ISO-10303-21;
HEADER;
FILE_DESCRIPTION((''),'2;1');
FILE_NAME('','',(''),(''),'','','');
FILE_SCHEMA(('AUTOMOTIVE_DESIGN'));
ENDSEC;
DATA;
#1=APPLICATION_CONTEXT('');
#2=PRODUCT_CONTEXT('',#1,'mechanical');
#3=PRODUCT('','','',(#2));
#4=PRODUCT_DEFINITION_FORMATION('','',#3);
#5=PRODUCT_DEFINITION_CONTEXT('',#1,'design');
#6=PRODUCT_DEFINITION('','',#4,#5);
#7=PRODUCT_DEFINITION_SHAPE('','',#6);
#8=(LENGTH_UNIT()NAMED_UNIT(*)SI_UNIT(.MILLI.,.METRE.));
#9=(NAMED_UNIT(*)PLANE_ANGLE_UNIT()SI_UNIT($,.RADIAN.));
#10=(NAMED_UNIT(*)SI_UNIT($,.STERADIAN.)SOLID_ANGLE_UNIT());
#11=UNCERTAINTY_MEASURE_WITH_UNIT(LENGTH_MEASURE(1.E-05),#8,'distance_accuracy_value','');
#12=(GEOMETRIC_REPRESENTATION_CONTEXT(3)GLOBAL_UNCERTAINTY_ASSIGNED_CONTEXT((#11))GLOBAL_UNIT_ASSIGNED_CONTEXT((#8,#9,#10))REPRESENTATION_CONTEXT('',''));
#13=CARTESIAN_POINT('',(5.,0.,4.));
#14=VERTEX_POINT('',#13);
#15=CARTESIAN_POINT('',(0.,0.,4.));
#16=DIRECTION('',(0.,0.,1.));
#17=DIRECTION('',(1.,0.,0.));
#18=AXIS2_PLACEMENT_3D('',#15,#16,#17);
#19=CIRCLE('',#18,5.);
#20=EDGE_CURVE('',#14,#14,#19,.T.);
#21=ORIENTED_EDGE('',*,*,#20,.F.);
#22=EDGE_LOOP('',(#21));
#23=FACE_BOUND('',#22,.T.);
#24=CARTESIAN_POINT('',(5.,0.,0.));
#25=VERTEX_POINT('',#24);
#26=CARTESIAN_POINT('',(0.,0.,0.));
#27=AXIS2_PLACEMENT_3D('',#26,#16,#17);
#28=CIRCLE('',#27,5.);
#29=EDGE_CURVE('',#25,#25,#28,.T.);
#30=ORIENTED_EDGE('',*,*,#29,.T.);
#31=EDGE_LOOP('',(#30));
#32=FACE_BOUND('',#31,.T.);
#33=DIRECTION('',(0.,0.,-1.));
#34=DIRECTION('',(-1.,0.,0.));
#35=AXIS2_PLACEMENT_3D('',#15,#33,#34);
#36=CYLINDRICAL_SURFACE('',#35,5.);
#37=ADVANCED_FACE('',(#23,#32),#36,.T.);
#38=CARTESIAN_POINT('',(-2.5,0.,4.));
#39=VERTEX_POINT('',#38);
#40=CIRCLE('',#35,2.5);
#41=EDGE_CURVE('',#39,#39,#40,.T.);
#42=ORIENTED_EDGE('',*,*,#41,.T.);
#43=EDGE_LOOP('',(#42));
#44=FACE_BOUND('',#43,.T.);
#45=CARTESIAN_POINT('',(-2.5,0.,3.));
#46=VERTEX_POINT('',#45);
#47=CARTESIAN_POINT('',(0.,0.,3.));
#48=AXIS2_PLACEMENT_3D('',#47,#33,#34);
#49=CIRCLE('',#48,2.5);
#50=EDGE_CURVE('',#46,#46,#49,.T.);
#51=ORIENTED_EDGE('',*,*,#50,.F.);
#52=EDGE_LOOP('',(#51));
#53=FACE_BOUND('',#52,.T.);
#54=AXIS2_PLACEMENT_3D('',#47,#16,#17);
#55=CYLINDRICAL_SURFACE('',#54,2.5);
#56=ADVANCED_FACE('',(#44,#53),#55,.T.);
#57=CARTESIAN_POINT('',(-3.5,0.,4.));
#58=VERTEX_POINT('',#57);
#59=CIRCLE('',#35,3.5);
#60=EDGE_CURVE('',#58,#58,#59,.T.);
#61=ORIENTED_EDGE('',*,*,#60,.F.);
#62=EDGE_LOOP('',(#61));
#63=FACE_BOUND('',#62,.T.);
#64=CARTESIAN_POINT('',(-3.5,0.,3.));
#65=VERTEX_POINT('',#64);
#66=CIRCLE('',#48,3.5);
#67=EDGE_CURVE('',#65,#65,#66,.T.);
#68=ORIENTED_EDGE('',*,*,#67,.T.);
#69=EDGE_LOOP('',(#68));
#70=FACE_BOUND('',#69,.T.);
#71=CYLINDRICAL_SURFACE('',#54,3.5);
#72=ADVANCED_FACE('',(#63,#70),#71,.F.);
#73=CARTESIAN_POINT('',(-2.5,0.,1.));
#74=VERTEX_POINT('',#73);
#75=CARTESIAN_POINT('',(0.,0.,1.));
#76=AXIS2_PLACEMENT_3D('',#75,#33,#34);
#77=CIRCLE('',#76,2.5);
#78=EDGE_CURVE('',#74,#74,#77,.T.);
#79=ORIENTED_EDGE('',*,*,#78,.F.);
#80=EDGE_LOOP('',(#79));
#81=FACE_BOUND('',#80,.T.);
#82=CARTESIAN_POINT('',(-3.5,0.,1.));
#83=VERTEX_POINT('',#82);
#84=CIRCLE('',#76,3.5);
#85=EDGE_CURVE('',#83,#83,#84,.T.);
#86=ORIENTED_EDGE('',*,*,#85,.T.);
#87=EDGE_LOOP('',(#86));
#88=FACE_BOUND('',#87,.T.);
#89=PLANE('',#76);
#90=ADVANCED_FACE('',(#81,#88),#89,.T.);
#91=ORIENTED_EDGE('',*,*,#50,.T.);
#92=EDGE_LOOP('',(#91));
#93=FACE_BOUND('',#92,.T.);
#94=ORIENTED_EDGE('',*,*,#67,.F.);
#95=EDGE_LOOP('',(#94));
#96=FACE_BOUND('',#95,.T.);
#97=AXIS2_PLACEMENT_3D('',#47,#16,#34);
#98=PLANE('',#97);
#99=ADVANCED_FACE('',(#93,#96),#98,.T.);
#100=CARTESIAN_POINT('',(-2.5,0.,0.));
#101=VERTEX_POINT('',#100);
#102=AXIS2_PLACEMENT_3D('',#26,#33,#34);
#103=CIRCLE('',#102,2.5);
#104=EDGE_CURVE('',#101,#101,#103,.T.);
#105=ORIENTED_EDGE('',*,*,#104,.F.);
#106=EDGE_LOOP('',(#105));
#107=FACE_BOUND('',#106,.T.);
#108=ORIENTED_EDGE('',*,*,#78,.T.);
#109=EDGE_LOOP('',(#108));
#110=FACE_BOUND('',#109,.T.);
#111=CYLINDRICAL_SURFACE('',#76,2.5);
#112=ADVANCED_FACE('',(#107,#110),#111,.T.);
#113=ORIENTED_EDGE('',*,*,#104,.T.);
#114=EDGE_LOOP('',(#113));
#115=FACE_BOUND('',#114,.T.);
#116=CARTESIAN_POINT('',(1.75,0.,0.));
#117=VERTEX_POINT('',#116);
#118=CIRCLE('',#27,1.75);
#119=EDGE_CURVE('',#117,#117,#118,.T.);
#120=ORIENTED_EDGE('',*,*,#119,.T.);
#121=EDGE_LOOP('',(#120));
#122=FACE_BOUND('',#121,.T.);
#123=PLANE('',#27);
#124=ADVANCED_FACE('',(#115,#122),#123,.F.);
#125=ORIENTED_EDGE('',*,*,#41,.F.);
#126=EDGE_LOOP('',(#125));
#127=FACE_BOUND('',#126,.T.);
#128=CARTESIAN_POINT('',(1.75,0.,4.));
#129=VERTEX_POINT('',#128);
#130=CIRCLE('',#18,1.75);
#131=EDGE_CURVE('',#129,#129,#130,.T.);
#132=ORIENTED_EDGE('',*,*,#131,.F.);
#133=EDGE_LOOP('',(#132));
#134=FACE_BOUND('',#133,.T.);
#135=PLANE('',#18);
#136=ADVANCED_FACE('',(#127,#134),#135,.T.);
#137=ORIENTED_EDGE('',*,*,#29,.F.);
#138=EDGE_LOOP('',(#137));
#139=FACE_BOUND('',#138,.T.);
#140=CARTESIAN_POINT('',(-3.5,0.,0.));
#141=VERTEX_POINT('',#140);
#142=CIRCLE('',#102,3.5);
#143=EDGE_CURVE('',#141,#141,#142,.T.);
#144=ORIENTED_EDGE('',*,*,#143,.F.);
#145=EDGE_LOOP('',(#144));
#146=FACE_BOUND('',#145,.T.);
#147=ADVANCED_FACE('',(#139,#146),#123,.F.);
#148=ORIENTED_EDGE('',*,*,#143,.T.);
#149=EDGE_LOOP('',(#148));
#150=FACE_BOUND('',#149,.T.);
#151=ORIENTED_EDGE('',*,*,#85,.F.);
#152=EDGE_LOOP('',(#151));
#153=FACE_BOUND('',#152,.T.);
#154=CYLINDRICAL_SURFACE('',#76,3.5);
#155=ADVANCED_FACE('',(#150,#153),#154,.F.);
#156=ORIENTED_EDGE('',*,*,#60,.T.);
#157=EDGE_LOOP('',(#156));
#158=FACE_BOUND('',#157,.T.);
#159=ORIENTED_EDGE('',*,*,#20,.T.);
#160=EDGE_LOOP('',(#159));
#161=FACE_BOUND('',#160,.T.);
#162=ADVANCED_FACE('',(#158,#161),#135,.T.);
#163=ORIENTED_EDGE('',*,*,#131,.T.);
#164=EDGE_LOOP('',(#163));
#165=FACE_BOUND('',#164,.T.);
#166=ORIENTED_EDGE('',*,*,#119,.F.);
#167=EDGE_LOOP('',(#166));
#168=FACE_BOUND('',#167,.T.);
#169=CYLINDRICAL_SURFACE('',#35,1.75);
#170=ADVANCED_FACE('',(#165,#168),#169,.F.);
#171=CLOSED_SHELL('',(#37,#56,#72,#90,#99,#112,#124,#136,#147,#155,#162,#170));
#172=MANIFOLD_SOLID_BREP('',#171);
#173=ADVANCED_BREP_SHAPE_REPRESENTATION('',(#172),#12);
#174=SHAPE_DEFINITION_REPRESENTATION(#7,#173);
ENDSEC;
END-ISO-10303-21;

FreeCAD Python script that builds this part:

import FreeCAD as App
import Part
import Sketcher

V = App.Vector
Q = App.Units.Quantity

doc = App.newDocument("Part")
body = doc.addObject("PartDesign::Body", "Body")

# Sketch on XY plane
sketch1 = body.newObject("Sketcher::SketchObject", "Sketch")
sketch1.AttachmentSupport = (doc.getObject("XY_Plane"), [""])
sketch1.MapMode = "FlatFace"
sketch1.addGeometry([
    Part.Circle(V(0, 0, 0), V(0, 0, 1), 5),
    Part.Circle(V(0, 0, 0), V(0, 0, 1), 1.75),
], False)
sketch1.addConstraint([
    Sketcher.Constraint("Coincident", 0, 3, -1, 1),
    Sketcher.Constraint("Coincident", 1, 3, -1, 1),
    Sketcher.Constraint("Diameter", 0, Q("10 mm")),
    Sketcher.Constraint("Diameter", 1, Q("3.5 mm")),
])
pad1 = body.newObject("PartDesign::Pad", "Pad")
pad1.Profile = sketch1
pad1.Length = 4

# Sketch on XY plane
sketch2 = body.newObject("Sketcher::SketchObject", "Sketch001")
sketch2.AttachmentSupport = (doc.getObject("XY_Plane"), [""])
sketch2.MapMode = "FlatFace"
sketch2.addGeometry([
    Part.Circle(V(0, 0, 0), V(0, 0, 1), 3.5),
    Part.Circle(V(0, 0, 0), V(0, 0, 1), 2.5),
], False)
sketch2.addConstraint([
    Sketcher.Constraint("Coincident", 0, 3, -1, 1),
    Sketcher.Constraint("Coincident", 1, 3, -1, 1),
    Sketcher.Constraint("Diameter", 0, Q("7 mm")),
    Sketcher.Constraint("Diameter", 1, Q("5 mm")),
])
pocket1 = body.newObject("PartDesign::Pocket", "Pocket")
pocket1.Profile = sketch2
pocket1.Length = 1
pocket1.Reversed = True
doc.recompute()

datumplane = body.newObject("PartDesign::Plane", "DatumPlane")
datumplane.AttachmentSupport = (doc.getObject("XY_Plane"), [""])
datumplane.MapMode = "FlatFace"
datumplane.AttachmentOffset = App.Placement(V(0, 0, 2), App.Rotation())
mirrored = body.newObject("PartDesign::Mirrored", "Mirrored")
mirrored.Originals = [pocket1]
mirrored.MirrorPlane = (datumplane, [""])
body.Tip = mirrored

doc.recompute()
